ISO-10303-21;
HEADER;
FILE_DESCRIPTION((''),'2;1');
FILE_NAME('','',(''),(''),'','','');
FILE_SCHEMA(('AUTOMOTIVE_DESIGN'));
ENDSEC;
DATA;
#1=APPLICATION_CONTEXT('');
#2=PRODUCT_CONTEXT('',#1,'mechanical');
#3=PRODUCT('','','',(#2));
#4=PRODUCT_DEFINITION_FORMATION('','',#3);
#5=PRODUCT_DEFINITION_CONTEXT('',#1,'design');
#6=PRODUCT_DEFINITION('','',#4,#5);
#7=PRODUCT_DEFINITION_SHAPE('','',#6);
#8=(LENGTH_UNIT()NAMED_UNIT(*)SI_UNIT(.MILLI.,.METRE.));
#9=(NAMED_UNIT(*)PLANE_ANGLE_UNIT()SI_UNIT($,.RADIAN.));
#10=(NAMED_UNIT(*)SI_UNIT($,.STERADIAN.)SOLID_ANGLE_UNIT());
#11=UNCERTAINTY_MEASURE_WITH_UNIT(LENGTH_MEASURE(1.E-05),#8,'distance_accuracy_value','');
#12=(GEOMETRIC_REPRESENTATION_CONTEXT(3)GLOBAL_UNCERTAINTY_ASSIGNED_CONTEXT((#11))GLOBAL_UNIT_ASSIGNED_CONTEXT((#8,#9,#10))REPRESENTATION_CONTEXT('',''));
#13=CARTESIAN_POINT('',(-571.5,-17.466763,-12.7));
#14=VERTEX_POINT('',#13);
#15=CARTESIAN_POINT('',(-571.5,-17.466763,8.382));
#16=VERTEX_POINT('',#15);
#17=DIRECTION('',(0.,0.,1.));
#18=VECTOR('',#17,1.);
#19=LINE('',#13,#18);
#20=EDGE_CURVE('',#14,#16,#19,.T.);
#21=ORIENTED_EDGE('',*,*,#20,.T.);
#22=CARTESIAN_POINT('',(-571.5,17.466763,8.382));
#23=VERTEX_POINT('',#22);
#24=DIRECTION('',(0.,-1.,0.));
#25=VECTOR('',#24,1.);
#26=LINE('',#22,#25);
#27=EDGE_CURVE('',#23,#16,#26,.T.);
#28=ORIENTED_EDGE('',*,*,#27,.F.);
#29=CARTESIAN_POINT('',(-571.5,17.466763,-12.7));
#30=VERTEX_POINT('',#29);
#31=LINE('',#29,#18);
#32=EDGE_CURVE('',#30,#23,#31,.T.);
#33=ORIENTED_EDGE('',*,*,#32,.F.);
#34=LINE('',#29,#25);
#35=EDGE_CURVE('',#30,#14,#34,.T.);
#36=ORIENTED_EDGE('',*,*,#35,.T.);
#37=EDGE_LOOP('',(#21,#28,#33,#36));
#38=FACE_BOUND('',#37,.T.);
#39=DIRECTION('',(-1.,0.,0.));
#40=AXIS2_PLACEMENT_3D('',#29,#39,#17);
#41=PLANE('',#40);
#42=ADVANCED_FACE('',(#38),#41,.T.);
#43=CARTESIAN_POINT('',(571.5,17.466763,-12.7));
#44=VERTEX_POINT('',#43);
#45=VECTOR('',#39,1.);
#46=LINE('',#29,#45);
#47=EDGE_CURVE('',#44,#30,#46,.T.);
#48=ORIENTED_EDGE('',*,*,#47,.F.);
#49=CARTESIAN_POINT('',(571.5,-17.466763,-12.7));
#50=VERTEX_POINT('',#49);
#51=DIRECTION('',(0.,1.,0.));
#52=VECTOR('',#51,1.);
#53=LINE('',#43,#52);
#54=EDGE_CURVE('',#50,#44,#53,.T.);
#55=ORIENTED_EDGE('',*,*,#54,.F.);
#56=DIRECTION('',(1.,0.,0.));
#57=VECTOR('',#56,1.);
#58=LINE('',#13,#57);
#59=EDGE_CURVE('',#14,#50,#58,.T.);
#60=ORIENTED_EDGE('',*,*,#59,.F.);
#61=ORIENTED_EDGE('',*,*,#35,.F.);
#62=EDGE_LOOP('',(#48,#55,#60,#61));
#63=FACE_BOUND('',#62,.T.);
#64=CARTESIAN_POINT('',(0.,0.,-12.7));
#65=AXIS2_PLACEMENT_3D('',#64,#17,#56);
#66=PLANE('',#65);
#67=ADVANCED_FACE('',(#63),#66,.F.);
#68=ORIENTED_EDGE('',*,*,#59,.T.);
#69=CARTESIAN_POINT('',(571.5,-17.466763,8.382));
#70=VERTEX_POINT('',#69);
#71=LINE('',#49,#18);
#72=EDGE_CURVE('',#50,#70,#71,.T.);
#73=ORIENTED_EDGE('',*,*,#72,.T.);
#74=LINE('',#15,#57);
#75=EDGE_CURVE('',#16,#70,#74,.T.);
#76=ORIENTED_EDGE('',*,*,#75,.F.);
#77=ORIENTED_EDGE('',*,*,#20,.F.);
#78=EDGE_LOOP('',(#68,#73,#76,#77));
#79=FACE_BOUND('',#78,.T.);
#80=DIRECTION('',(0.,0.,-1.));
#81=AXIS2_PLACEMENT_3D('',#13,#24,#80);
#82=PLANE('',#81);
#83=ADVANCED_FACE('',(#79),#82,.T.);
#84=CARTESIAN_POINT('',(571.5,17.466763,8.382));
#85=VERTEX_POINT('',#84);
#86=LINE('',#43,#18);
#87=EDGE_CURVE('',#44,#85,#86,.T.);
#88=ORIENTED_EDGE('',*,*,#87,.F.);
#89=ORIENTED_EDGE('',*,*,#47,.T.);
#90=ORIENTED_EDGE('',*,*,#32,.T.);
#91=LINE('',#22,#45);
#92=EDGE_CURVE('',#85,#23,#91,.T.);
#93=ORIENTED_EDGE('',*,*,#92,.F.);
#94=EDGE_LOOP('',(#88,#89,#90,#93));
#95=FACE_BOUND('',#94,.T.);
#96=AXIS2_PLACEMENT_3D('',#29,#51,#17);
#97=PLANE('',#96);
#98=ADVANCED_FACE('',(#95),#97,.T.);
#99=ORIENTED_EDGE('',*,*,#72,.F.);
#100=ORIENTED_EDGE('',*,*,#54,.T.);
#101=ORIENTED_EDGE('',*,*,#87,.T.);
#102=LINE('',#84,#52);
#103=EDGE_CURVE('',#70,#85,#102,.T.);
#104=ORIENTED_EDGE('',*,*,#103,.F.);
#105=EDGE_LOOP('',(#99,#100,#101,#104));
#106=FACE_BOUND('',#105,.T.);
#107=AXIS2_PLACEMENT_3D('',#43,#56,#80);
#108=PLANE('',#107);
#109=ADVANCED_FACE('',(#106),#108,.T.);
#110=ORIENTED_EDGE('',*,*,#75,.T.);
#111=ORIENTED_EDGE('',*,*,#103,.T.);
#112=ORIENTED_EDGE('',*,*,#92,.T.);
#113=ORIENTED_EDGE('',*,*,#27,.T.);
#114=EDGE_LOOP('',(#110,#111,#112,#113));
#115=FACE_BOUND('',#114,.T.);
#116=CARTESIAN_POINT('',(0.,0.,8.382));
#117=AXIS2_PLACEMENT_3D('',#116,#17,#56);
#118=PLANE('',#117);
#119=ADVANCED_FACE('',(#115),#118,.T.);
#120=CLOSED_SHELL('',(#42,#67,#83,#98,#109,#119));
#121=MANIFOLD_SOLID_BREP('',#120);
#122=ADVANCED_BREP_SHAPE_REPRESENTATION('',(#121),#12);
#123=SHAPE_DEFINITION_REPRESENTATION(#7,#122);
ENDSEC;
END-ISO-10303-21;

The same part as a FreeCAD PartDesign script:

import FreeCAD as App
import Part
import Sketcher
from FreeCAD import Vector
Q = App.Units.Quantity

doc = App.newDocument("Part")
body = doc.addObject("PartDesign::Body", "Body")

sketch1 = doc.addObject("Sketcher::SketchObject", "Sketch")
body.addObject(sketch1)
sketch1.AttachmentSupport = (doc.XY_Plane, [""])
sketch1.MapMode = "FlatFace"
sketch1.addGeometry([
    Part.LineSegment(Vector(-571.5, 17.466763, 0), Vector(-571.5, -17.466763, 0)),
    Part.LineSegment(Vector(-571.5, -17.466763, 0), Vector(571.5, -17.466763, 0)),
    Part.LineSegment(Vector(571.5, -17.466763, 0), Vector(571.5, 17.466763, 0)),
    Part.LineSegment(Vector(571.5, 17.466763, 0), Vector(-571.5, 17.466763, 0)),
], False)
sketch1.addConstraint([
    Sketcher.Constraint("Coincident", 0, 2, 1, 1),
    Sketcher.Constraint("Coincident", 1, 2, 2, 1),
    Sketcher.Constraint("Coincident", 2, 2, 3, 1),
    Sketcher.Constraint("Coincident", 3, 2, 0, 1),
    Sketcher.Constraint("Vertical", 0),
    Sketcher.Constraint("Horizontal", 1),
    Sketcher.Constraint("Vertical", 2),
    Sketcher.Constraint("Horizontal", 3),
    Sketcher.Constraint("Symmetric", 0, 2, 2, 2, -1, 1),
    Sketcher.Constraint("DistanceX", 1, 1, 1, 2, Q("45 in")),
    Sketcher.Constraint("DistanceY", 0, 2, 0, 1, Q("34.933525 mm")),
])
pad1 = doc.addObject("PartDesign::Pad", "Pad")
body.addObject(pad1)
pad1.Profile = sketch1
pad1.Type = "TwoLengths"
pad1.Length = Q("0.33 in")
pad1.Length2 = Q("0.5 in")

doc.recompute()
